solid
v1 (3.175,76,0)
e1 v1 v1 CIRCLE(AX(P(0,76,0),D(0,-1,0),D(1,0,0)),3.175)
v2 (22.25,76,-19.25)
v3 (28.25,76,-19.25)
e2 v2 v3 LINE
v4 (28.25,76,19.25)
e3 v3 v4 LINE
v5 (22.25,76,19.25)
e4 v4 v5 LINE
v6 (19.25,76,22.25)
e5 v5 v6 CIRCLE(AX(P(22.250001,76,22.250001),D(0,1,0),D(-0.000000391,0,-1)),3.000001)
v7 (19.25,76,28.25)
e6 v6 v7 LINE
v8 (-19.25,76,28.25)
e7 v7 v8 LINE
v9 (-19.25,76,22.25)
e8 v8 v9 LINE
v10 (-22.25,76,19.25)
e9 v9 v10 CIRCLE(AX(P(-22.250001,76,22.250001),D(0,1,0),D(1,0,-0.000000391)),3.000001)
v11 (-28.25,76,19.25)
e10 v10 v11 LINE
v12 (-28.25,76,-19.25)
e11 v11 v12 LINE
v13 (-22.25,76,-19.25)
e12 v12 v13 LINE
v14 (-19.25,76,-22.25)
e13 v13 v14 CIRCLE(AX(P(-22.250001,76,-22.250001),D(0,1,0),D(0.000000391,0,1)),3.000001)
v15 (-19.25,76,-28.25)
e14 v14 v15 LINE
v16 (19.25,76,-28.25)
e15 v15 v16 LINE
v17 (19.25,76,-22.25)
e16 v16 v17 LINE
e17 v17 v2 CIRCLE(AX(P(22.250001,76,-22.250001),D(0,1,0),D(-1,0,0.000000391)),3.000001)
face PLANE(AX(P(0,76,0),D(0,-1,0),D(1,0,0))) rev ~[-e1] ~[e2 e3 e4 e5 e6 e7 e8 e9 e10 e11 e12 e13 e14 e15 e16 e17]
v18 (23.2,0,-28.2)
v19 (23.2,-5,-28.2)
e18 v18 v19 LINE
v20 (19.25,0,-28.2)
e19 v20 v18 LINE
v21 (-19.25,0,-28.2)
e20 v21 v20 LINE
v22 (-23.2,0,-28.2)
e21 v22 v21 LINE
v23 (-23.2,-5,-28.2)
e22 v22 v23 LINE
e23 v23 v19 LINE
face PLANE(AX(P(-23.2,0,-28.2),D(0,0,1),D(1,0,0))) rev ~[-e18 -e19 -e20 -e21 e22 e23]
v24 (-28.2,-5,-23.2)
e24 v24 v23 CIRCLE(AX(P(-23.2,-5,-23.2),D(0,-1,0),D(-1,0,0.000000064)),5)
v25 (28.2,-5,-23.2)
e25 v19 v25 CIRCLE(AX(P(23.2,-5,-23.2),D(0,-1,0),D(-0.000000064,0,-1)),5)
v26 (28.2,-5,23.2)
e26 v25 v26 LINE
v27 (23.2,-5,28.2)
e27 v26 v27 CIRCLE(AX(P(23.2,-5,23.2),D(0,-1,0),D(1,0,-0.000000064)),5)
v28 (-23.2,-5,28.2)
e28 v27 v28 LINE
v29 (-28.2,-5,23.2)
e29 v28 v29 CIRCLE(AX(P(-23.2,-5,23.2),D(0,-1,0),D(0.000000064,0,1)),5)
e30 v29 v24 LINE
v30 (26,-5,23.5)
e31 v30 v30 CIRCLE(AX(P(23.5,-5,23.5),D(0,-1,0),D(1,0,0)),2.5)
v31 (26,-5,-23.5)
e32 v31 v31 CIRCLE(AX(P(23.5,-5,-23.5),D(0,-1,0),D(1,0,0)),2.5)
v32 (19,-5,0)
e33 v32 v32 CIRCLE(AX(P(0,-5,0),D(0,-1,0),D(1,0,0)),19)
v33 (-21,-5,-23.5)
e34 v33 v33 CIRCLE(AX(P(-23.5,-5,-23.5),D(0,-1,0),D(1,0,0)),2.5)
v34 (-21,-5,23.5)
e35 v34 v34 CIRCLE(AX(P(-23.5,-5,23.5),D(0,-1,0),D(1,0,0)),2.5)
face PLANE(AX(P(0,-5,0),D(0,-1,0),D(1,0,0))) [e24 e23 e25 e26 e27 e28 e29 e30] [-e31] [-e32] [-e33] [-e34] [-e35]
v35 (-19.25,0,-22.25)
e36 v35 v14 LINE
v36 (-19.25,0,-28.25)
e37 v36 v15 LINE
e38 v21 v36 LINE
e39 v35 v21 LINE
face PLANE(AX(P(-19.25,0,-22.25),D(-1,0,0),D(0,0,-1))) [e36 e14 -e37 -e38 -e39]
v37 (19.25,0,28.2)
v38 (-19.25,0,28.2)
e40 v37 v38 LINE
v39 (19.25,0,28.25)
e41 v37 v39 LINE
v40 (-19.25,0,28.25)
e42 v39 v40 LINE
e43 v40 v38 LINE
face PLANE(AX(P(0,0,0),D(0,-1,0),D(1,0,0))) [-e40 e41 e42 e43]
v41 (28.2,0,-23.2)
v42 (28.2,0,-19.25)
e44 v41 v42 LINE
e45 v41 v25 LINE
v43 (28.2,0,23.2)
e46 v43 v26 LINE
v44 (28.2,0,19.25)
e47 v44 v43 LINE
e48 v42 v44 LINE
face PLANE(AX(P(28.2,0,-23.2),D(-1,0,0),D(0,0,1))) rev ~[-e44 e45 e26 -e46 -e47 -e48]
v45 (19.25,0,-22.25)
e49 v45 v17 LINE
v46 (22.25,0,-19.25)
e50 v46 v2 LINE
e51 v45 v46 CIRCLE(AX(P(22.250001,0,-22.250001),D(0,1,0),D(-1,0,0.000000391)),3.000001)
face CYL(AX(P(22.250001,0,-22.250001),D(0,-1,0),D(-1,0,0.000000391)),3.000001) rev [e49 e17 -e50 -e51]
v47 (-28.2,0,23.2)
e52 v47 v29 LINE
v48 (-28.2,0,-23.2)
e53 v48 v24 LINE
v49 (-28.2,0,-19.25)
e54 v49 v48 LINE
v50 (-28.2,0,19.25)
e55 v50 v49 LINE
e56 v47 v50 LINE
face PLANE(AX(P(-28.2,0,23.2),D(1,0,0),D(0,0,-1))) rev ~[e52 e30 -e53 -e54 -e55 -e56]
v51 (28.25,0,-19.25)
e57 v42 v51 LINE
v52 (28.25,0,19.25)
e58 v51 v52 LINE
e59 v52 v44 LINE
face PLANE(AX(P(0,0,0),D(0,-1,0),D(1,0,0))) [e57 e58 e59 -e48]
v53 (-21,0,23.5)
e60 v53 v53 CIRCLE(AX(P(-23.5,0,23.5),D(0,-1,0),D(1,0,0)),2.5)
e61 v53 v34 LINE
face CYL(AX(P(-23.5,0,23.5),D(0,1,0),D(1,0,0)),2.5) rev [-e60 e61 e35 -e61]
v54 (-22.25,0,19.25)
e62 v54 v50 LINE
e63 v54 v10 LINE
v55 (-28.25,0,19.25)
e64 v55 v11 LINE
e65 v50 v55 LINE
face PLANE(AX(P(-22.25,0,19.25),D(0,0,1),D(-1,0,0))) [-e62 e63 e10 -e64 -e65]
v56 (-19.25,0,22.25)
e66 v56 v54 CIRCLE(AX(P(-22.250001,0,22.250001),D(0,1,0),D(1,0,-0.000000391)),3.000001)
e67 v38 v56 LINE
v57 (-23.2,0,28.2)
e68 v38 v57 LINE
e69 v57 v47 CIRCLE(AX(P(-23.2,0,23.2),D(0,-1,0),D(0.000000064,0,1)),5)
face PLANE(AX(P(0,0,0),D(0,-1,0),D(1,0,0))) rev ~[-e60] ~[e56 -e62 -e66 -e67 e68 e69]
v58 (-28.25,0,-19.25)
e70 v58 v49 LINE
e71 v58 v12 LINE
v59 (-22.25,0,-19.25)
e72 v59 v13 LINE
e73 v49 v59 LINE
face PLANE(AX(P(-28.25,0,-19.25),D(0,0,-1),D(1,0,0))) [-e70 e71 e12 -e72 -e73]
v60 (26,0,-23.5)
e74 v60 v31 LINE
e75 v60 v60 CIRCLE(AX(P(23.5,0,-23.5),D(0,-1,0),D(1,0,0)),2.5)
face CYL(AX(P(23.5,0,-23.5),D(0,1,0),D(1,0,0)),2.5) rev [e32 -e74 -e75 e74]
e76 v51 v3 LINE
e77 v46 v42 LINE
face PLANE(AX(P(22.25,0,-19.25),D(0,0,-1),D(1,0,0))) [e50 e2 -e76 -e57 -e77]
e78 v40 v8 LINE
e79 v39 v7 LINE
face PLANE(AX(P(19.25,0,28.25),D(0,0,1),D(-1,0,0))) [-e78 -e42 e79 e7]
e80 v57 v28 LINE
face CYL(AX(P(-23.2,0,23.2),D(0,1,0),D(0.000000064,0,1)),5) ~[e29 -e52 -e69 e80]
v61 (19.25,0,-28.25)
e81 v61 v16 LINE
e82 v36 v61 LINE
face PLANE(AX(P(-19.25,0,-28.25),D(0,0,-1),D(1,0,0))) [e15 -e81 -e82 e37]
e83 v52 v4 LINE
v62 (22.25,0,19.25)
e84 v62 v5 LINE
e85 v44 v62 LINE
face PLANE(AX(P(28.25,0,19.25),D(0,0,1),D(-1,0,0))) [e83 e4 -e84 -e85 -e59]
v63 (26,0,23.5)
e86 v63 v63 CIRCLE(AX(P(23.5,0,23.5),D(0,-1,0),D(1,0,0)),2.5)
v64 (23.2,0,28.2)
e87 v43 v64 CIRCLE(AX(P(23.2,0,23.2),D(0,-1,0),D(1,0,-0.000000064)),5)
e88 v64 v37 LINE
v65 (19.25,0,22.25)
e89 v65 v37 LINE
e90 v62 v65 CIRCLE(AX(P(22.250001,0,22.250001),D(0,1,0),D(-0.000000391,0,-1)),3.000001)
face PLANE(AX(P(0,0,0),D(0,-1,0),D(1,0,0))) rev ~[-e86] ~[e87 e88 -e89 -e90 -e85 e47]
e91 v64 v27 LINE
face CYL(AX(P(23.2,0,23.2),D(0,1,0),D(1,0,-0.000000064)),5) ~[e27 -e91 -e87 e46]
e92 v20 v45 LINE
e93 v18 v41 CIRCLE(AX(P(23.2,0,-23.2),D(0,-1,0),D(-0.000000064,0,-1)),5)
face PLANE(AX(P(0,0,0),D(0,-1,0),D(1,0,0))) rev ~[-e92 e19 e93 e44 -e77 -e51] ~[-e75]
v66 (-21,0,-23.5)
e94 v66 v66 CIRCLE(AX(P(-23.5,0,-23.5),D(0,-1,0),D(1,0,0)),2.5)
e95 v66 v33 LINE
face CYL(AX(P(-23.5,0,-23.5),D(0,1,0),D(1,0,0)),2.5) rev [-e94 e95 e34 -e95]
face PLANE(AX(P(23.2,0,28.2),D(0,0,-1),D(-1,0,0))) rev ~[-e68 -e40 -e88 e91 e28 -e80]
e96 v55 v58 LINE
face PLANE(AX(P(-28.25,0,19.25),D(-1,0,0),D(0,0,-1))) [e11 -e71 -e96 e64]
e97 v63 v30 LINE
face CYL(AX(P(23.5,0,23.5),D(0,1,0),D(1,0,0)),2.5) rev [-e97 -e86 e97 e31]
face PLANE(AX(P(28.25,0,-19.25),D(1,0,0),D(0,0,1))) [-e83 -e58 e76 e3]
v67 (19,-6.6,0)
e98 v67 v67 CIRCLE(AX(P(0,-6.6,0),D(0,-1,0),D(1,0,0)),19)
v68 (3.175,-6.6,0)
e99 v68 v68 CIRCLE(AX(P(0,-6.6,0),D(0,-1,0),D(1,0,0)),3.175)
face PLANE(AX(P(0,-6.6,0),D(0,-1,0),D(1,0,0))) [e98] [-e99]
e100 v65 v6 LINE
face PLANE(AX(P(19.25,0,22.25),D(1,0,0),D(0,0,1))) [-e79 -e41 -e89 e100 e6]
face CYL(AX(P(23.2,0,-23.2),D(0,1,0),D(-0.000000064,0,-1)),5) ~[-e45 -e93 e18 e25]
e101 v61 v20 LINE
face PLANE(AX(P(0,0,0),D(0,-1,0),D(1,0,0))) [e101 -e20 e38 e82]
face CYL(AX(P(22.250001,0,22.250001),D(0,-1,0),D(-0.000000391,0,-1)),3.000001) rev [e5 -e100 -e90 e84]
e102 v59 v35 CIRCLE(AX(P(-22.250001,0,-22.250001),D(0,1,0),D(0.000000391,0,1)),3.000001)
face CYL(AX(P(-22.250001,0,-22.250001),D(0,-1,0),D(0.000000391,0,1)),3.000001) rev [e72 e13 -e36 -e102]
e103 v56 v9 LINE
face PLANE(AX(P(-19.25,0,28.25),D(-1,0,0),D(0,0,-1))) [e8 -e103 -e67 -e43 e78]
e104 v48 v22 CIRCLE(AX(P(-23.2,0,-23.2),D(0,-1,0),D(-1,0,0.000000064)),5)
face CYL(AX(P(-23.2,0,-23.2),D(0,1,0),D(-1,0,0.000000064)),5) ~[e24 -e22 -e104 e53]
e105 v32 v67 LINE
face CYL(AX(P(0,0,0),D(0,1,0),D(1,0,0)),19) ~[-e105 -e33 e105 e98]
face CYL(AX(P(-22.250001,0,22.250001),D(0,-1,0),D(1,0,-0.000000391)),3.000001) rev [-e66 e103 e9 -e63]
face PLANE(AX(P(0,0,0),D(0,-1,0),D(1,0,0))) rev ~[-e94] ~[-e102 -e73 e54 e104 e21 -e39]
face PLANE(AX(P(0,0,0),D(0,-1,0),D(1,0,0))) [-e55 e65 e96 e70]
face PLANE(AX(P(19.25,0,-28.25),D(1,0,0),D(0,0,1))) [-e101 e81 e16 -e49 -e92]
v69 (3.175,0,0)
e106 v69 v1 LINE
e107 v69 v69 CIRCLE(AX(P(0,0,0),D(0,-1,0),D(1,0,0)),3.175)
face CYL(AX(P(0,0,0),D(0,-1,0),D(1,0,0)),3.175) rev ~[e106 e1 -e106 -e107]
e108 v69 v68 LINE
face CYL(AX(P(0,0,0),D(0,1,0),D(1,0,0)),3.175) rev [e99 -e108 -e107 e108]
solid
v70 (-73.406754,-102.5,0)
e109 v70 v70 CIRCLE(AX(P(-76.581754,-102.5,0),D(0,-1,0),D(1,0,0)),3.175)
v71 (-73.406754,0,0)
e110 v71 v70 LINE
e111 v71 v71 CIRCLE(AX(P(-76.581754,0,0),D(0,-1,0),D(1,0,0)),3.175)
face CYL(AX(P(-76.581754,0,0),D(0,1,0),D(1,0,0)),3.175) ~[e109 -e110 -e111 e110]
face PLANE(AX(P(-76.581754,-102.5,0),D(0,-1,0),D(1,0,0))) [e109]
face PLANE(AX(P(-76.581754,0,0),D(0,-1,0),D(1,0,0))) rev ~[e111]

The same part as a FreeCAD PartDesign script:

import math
import FreeCAD as App
import Part
import Sketcher
Q = App.Units.Quantity

doc = App.newDocument("Part")
body = doc.addObject("PartDesign::Body", "Body")

# Sketch on XZ plane
sketch1 = doc.addObject("Sketcher::SketchObject", "Sketch")
body.addObject(sketch1)
sketch1.AttachmentSupport = (doc.XZ_Plane, [""])
sketch1.MapMode = "FlatFace"
sketch1.addGeometry([
    Part.LineSegment(App.Vector(23.2, 28.2, 0), App.Vector(-23.2, 28.2, 0)),  # 0
    Part.ArcOfCircle(Part.Circle(App.Vector(-23.2, 23.2, 0), App.Vector(0, 0, 1), 5), math.radians(89.999996), math.radians(180.000004)),  # 1
    Part.LineSegment(App.Vector(-28.2, 23.2, 0), App.Vector(-28.2, -23.2, 0)),  # 2
    Part.ArcOfCircle(Part.Circle(App.Vector(-23.2, -23.2, 0), App.Vector(0, 0, 1), 5), math.radians(179.999996), math.radians(270.000004)),  # 3
    Part.LineSegment(App.Vector(-23.2, -28.2, 0), App.Vector(23.2, -28.2, 0)),  # 4
    Part.ArcOfCircle(Part.Circle(App.Vector(23.2, -23.2, 0), App.Vector(0, 0, 1), 5), math.radians(-90.000004), math.radians(0.000004)),  # 5
    Part.LineSegment(App.Vector(28.2, -23.2, 0), App.Vector(28.2, 23.2, 0)),  # 6
    Part.ArcOfCircle(Part.Circle(App.Vector(23.2, 23.2, 0), App.Vector(0, 0, 1), 5), math.radians(-0.000004), math.radians(90.000004)),  # 7
    Part.Circle(App.Vector(-23.5, -23.5, 0), App.Vector(0, 0, 1), 2.5),  # 8
    Part.Circle(App.Vector(23.5, -23.5, 0), App.Vector(0, 0, 1), 2.5),  # 9
    Part.Circle(App.Vector(-23.5, 23.5, 0), App.Vector(0, 0, 1), 2.5),  # 10
    Part.Circle(App.Vector(0, 0, 0), App.Vector(0, 0, 1), 19),  # 11
    Part.Circle(App.Vector(23.5, 23.5, 0), App.Vector(0, 0, 1), 2.5),  # 12
], False)
sketch1.addConstraint([
    Sketcher.Constraint("Tangent", 0, 2, 1, 1),
    Sketcher.Constraint("Tangent", 1, 2, 2, 1),
    Sketcher.Constraint("Tangent", 2, 2, 3, 1),
    Sketcher.Constraint("Tangent", 3, 2, 4, 1),
    Sketcher.Constraint("Tangent", 4, 2, 5, 1),
    Sketcher.Constraint("Tangent", 5, 2, 6, 1),
    Sketcher.Constraint("Tangent", 6, 2, 7, 1),
    Sketcher.Constraint("Tangent", 7, 2, 0, 1),
    Sketcher.Constraint("Horizontal", 0),
    Sketcher.Constraint("Vertical", 2),
    Sketcher.Constraint("Horizontal", 4),
    Sketcher.Constraint("Vertical", 6),
    Sketcher.Constraint("Coincident", 11, 3, -1, 1),
    Sketcher.Constraint("Equal", 1, 3),
    Sketcher.Constraint("Equal", 3, 5),
    Sketcher.Constraint("Equal", 5, 7),
    Sketcher.Constraint("Equal", 8, 9),
    Sketcher.Constraint("Equal", 9, 10),
    Sketcher.Constraint("Equal", 10, 12),
    Sketcher.Constraint("Symmetric", 1, 3, 5, 3, -1, 1),
    Sketcher.Constraint("Symmetric", 9, 3, 10, 3, -1, 1),
    Sketcher.Constraint("Symmetric", 8, 3, 12, 3, -1, 1),
    Sketcher.Constraint("Symmetric", 8, 3, 9, 3, -2),
    Sketcher.Constraint("Equal", 4, 2),
    Sketcher.Constraint("Diameter", 8, Q("5 mm")),
    Sketcher.Constraint("Diameter", 11, Q("38 mm")),
    Sketcher.Constraint("Radius", 1, Q("5 mm")),
    Sketcher.Constraint("DistanceX", 0, 2, 0, 1, Q("46.4 mm")),
    Sketcher.Constraint("DistanceX", 8, 3, 9, 3, Q("47 mm")),
    Sketcher.Constraint("DistanceY", 8, 3, 10, 3, Q("47 mm")),
])
pad1 = doc.addObject("PartDesign::Pad", "Pad")
body.addObject(pad1)
pad1.Profile = sketch1
pad1.Length = 5

# Sketch on XZ plane
sketch2 = doc.addObject("Sketcher::SketchObject", "Sketch001")
body.addObject(sketch2)
sketch2.AttachmentSupport = (doc.XZ_Plane, [""])
sketch2.MapMode = "FlatFace"
sketch2.addGeometry([
    Part.Circle(App.Vector(0, 0, 0), App.Vector(0, 0, 1), 19),
    Part.Circle(App.Vector(0, 0, 0), App.Vector(0, 0, 1), 3.175),
], False)
sketch2.addConstraint([
    Sketcher.Constraint("Coincident", 0, 3, -1, 1),
    Sketcher.Constraint("Coincident", 1, 3, -1, 1),
    Sketcher.Constraint("Diameter", 0, Q("38 mm")),
    Sketcher.Constraint("Diameter", 1, Q("6.35 mm")),
])
pad2 = doc.addObject("PartDesign::Pad", "Pad001")
body.addObject(pad2)
pad2.Profile = sketch2
pad2.Length = 6.6

# Sketch on XZ plane
sketch3 = doc.addObject("Sketcher::SketchObject", "Sketch002")
body.addObject(sketch3)
sketch3.AttachmentSupport = (doc.XZ_Plane, [""])
sketch3.MapMode = "FlatFace"
sketch3.addGeometry([
    Part.LineSegment(App.Vector(28.25, -19.25, 0), App.Vector(28.25, 19.25, 0)),  # 0
    Part.LineSegment(App.Vector(28.25, 19.25, 0), App.Vector(22.25, 19.25, 0)),  # 1
    Part.ArcOfCircle(Part.Circle(App.Vector(22.250001, 22.250001, 0), App.Vector(0, 0, 1), 3.000001), math.radians(-179.999978), math.radians(-90.000022)),  # 2
    Part.LineSegment(App.Vector(19.25, 22.25, 0), App.Vector(19.25, 28.25, 0)),  # 3
    Part.LineSegment(App.Vector(19.25, 28.25, 0), App.Vector(-19.25, 28.25, 0)),  # 4
    Part.LineSegment(App.Vector(-19.25, 28.25, 0), App.Vector(-19.25, 22.25, 0)),  # 5
    Part.ArcOfCircle(Part.Circle(App.Vector(-22.250001, 22.250001, 0), App.Vector(0, 0, 1), 3.000001), math.radians(-89.999978), math.radians(-0.000022)),  # 6
    Part.LineSegment(App.Vector(-22.25, 19.25, 0), App.Vector(-28.25, 19.25, 0)),  # 7
    Part.LineSegment(App.Vector(-28.25, 19.25, 0), App.Vector(-28.25, -19.25, 0)),  # 8
    Part.LineSegment(App.Vector(-28.25, -19.25, 0), App.Vector(-22.25, -19.25, 0)),  # 9
    Part.ArcOfCircle(Part.Circle(App.Vector(-22.250001, -22.250001, 0), App.Vector(0, 0, 1), 3.000001), math.radians(0.000022), math.radians(89.999978)),  # 10
    Part.LineSegment(App.Vector(-19.25, -22.25, 0), App.Vector(-19.25, -28.25, 0)),  # 11
    Part.LineSegment(App.Vector(-19.25, -28.25, 0), App.Vector(19.25, -28.25, 0)),  # 12
    Part.LineSegment(App.Vector(19.25, -28.25, 0), App.Vector(19.25, -22.25, 0)),  # 13
    Part.ArcOfCircle(Part.Circle(App.Vector(22.250001, -22.250001, 0), App.Vector(0, 0, 1), 3.000001), math.radians(90.000022), math.radians(179.999978)),  # 14
    Part.LineSegment(App.Vector(22.25, -19.25, 0), App.Vector(28.25, -19.25, 0)),  # 15
    Part.Circle(App.Vector(0, 0, 0), App.Vector(0, 0, 1), 3.175),  # 16
], False)
sketch3.addConstraint([
    Sketcher.Constraint("Coincident", 0, 2, 1, 1),
    Sketcher.Constraint("Tangent", 1, 2, 2, 2),
    Sketcher.Constraint("Tangent", 2, 1, 3, 1),
    Sketcher.Constraint("Coincident", 3, 2, 4, 1),
    Sketcher.Constraint("Coincident", 4, 2, 5, 1),
    Sketcher.Constraint("Tangent", 5, 2, 6, 2),
    Sketcher.Constraint("Tangent", 6, 1, 7, 1),
    Sketcher.Constraint("Coincident", 7, 2, 8, 1),
    Sketcher.Constraint("Coincident", 8, 2, 9, 1),
    Sketcher.Constraint("Tangent", 9, 2, 10, 2),
    Sketcher.Constraint("Tangent", 10, 1, 11, 1),
    Sketcher.Constraint("Coincident", 11, 2, 12, 1),
    Sketcher.Constraint("Coincident", 12, 2, 13, 1),
    Sketcher.Constraint("Tangent", 13, 2, 14, 2),
    Sketcher.Constraint("Tangent", 14, 1, 15, 1),
    Sketcher.Constraint("Coincident", 15, 2, 0, 1),
    Sketcher.Constraint("Vertical", 0),
    Sketcher.Constraint("Horizontal", 1),
    Sketcher.Constraint("Vertical", 3),
    Sketcher.Constraint("Horizontal", 4),
    Sketcher.Constraint("Vertical", 5),
    Sketcher.Constraint("Horizontal", 7),
    Sketcher.Constraint("Vertical", 8),
    Sketcher.Constraint("Horizontal", 9),
    Sketcher.Constraint("Vertical", 11),
    Sketcher.Constraint("Horizontal", 12),
    Sketcher.Constraint("Vertical", 13),
    Sketcher.Constraint("Horizontal", 15),
    Sketcher.Constraint("Coincident", 16, 3, -1, 1),
    Sketcher.Constraint("Equal", 2, 6),
    Sketcher.Constraint("Equal", 6, 10),
    Sketcher.Constraint("Equal", 10, 14),
    Sketcher.Constraint("Symmetric", 2, 3, 10, 3, -1, 1),
    Sketcher.Constraint("Symmetric", 6, 3, 14, 3, -1, 1),
    Sketcher.Constraint("Symmetric", 2, 3, 6, 3, -2),
    Sketcher.Constraint("Equal", 1, 7),
    Sketcher.Constraint("Equal", 12, 0),
    Sketcher.Constraint("Equal", 15, 3),
    Sketcher.Constraint("Equal", 5, 11),
    Sketcher.Constraint("Radius", 2, Q("3.000001 mm")),
    Sketcher.Constraint("Diameter", 16, Q("6.35 mm")),
    Sketcher.Constraint("DistanceX", 1, 2, 1, 1, Q("6 mm")),
    Sketcher.Constraint("DistanceX", 4, 2, 4, 1, Q("38.5 mm")),
])
pad3 = doc.addObject("PartDesign::Pad", "Pad002")
body.addObject(pad3)
pad3.Profile = sketch3
pad3.Length = 76
pad3.Reversed = True
body2 = doc.addObject("PartDesign::Body", "Body001")

# Sketch on XZ plane
sketch4 = doc.addObject("Sketcher::SketchObject", "Sketch003")
body2.addObject(sketch4)
sketch4.AttachmentSupport = (doc.getObject("XZ_Plane001"), [""])
sketch4.MapMode = "FlatFace"
sketch4.addGeometry(Part.Circle(App.Vector(-76.581754, 0, 0), App.Vector(0, 0, 1), 3.175), False)
sketch4.addConstraint([
    Sketcher.Constraint("PointOnObject", 0, 3, -1),
    Sketcher.Constraint("Diameter", 0, Q("6.35 mm")),
    Sketcher.Constraint("DistanceX", 0, 3, -1, 1, Q("76.581754 mm")),
])
pad4 = doc.addObject("PartDesign::Pad", "Pad003")
body2.addObject(pad4)
pad4.Profile = sketch4
pad4.Length = 102.5

doc.recompute()
